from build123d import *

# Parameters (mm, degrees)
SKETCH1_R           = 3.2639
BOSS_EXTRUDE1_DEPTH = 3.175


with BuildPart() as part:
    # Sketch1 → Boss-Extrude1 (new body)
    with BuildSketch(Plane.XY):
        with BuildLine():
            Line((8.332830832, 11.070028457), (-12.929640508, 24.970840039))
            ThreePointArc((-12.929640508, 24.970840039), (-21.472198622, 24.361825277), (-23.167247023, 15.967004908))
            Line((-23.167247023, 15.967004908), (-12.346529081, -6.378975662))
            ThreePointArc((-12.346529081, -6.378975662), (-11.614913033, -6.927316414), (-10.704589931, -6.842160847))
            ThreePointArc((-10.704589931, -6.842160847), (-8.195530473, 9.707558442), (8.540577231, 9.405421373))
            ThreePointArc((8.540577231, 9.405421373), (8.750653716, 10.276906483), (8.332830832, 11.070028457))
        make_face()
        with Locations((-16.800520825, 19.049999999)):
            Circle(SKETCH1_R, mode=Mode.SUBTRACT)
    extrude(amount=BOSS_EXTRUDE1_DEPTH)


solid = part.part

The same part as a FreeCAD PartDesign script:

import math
import FreeCAD as App
import Part
import Sketcher

V = App.Vector
Q = App.Units.Quantity

doc = App.newDocument("Part")
params = doc.addObject("Spreadsheet::Sheet", "Params")
for row, (alias, value) in enumerate([
    ("sketch1_radius", "0.05 in"),
    ("sketch1_diameter", "0.257 in"),
    ("pad1_length", "0.125 in"),
], start=1):
    params.set(f"A{row}", alias)
    params.set(f"B{row}", "=" + value)
    params.setAlias(f"B{row}", alias)

body = doc.addObject("PartDesign::Body", "Body")

# Sketch on XY plane
sketch1 = doc.addObject("Sketcher::SketchObject", "Sketch")
body.addObject(sketch1)
sketch1.AttachmentSupport = (doc.XY_Plane, [""])
sketch1.MapMode = "FlatFace"
sketch1.addGeometry([
    Part.LineSegment(V(8.332831, 11.070028, 0), V(-12.929641, 24.97084, 0)),  # 0
    Part.ArcOfCircle(Part.Circle(V(-16.800521, 19.05, 0), V(0, 0, 1), 7.0739), math.radians(56.824459), math.radians(205.837915)),  # 1
    Part.LineSegment(V(-23.167247, 15.967005, 0), V(-12.346529, -6.378976, 0)),  # 2
    Part.ArcOfCircle(Part.Circle(V(-11.270107, -5.70502, 0), V(0, 0, 1), 1.27), math.radians(-147.948998), math.radians(-63.558143)),  # 3
    Part.ArcOfCircle(Part.Circle(V(0, 0, 0), V(0, 0, 1), 12.704464), math.radians(47.759034), math.radians(212.585904)),  # 4
    Part.ArcOfCircle(Part.Circle(V(7.49043, 10.119628, 0), V(0, 0, 1), 1.27), math.radians(-34.219678), math.radians(48.447378)),  # 5
    Part.Circle(V(-16.800521, 19.05, 0), V(0, 0, 1), 3.2639),  # 6
], False)
sketch1.addConstraint([
    Sketcher.Constraint("Tangent", 0, 2, 1, 1),
    Sketcher.Constraint("Tangent", 1, 2, 2, 1),
    Sketcher.Constraint("Coincident", 2, 2, 3, 1),
    Sketcher.Constraint("Coincident", 3, 2, 4, 2),
    Sketcher.Constraint("Coincident", 4, 1, 5, 1),
    Sketcher.Constraint("Coincident", 5, 2, 0, 1),
    Sketcher.Constraint("Coincident", 4, 3, -1, 1),
    Sketcher.Constraint("Coincident", 6, 3, 1, 3),
    Sketcher.Constraint("Equal", 3, 5),
    Sketcher.Constraint("Radius", 3, Q("0.05 in")),
    Sketcher.Constraint("Diameter", 6, Q("0.257 in")),
    Sketcher.Constraint("Radius", 1, Q("0.2785 in")),
    Sketcher.Constraint("DistanceY", -1, 1, 1, 3, Q("0.75 in")),
    Sketcher.Constraint("Radius", 4, Q("12.704464 mm")),
    Sketcher.Constraint("DistanceX", 5, 3, 5, 2, Q("0.842401 mm")),
    Sketcher.Constraint("DistanceX", 1, 3, -1, 1, Q("16.800521 mm")),
    Sketcher.Constraint("DistanceY", 3, 3, -1, 1, Q("5.70502 mm")),
    Sketcher.Constraint("DistanceX", -1, 1, 5, 3, Q("7.49043 mm")),
    Sketcher.Constraint("DistanceX", 0, 2, -1, 1, Q("12.929641 mm")),
    Sketcher.Constraint("DistanceX", 2, 2, -1, 1, Q("12.346529 mm")),
    Sketcher.Constraint("DistanceX", 3, 2, -1, 1, Q("10.70459 mm")),
])
sketch1.setExpression("Constraints[9]", "Params.sketch1_radius")
sketch1.setExpression("Constraints[10]", "Params.sketch1_diameter")
pad1 = doc.addObject("PartDesign::Pad", "Pad")
body.addObject(pad1)
pad1.Profile = sketch1
pad1.setExpression("Length", "Params.pad1_length")

doc.recompute()
